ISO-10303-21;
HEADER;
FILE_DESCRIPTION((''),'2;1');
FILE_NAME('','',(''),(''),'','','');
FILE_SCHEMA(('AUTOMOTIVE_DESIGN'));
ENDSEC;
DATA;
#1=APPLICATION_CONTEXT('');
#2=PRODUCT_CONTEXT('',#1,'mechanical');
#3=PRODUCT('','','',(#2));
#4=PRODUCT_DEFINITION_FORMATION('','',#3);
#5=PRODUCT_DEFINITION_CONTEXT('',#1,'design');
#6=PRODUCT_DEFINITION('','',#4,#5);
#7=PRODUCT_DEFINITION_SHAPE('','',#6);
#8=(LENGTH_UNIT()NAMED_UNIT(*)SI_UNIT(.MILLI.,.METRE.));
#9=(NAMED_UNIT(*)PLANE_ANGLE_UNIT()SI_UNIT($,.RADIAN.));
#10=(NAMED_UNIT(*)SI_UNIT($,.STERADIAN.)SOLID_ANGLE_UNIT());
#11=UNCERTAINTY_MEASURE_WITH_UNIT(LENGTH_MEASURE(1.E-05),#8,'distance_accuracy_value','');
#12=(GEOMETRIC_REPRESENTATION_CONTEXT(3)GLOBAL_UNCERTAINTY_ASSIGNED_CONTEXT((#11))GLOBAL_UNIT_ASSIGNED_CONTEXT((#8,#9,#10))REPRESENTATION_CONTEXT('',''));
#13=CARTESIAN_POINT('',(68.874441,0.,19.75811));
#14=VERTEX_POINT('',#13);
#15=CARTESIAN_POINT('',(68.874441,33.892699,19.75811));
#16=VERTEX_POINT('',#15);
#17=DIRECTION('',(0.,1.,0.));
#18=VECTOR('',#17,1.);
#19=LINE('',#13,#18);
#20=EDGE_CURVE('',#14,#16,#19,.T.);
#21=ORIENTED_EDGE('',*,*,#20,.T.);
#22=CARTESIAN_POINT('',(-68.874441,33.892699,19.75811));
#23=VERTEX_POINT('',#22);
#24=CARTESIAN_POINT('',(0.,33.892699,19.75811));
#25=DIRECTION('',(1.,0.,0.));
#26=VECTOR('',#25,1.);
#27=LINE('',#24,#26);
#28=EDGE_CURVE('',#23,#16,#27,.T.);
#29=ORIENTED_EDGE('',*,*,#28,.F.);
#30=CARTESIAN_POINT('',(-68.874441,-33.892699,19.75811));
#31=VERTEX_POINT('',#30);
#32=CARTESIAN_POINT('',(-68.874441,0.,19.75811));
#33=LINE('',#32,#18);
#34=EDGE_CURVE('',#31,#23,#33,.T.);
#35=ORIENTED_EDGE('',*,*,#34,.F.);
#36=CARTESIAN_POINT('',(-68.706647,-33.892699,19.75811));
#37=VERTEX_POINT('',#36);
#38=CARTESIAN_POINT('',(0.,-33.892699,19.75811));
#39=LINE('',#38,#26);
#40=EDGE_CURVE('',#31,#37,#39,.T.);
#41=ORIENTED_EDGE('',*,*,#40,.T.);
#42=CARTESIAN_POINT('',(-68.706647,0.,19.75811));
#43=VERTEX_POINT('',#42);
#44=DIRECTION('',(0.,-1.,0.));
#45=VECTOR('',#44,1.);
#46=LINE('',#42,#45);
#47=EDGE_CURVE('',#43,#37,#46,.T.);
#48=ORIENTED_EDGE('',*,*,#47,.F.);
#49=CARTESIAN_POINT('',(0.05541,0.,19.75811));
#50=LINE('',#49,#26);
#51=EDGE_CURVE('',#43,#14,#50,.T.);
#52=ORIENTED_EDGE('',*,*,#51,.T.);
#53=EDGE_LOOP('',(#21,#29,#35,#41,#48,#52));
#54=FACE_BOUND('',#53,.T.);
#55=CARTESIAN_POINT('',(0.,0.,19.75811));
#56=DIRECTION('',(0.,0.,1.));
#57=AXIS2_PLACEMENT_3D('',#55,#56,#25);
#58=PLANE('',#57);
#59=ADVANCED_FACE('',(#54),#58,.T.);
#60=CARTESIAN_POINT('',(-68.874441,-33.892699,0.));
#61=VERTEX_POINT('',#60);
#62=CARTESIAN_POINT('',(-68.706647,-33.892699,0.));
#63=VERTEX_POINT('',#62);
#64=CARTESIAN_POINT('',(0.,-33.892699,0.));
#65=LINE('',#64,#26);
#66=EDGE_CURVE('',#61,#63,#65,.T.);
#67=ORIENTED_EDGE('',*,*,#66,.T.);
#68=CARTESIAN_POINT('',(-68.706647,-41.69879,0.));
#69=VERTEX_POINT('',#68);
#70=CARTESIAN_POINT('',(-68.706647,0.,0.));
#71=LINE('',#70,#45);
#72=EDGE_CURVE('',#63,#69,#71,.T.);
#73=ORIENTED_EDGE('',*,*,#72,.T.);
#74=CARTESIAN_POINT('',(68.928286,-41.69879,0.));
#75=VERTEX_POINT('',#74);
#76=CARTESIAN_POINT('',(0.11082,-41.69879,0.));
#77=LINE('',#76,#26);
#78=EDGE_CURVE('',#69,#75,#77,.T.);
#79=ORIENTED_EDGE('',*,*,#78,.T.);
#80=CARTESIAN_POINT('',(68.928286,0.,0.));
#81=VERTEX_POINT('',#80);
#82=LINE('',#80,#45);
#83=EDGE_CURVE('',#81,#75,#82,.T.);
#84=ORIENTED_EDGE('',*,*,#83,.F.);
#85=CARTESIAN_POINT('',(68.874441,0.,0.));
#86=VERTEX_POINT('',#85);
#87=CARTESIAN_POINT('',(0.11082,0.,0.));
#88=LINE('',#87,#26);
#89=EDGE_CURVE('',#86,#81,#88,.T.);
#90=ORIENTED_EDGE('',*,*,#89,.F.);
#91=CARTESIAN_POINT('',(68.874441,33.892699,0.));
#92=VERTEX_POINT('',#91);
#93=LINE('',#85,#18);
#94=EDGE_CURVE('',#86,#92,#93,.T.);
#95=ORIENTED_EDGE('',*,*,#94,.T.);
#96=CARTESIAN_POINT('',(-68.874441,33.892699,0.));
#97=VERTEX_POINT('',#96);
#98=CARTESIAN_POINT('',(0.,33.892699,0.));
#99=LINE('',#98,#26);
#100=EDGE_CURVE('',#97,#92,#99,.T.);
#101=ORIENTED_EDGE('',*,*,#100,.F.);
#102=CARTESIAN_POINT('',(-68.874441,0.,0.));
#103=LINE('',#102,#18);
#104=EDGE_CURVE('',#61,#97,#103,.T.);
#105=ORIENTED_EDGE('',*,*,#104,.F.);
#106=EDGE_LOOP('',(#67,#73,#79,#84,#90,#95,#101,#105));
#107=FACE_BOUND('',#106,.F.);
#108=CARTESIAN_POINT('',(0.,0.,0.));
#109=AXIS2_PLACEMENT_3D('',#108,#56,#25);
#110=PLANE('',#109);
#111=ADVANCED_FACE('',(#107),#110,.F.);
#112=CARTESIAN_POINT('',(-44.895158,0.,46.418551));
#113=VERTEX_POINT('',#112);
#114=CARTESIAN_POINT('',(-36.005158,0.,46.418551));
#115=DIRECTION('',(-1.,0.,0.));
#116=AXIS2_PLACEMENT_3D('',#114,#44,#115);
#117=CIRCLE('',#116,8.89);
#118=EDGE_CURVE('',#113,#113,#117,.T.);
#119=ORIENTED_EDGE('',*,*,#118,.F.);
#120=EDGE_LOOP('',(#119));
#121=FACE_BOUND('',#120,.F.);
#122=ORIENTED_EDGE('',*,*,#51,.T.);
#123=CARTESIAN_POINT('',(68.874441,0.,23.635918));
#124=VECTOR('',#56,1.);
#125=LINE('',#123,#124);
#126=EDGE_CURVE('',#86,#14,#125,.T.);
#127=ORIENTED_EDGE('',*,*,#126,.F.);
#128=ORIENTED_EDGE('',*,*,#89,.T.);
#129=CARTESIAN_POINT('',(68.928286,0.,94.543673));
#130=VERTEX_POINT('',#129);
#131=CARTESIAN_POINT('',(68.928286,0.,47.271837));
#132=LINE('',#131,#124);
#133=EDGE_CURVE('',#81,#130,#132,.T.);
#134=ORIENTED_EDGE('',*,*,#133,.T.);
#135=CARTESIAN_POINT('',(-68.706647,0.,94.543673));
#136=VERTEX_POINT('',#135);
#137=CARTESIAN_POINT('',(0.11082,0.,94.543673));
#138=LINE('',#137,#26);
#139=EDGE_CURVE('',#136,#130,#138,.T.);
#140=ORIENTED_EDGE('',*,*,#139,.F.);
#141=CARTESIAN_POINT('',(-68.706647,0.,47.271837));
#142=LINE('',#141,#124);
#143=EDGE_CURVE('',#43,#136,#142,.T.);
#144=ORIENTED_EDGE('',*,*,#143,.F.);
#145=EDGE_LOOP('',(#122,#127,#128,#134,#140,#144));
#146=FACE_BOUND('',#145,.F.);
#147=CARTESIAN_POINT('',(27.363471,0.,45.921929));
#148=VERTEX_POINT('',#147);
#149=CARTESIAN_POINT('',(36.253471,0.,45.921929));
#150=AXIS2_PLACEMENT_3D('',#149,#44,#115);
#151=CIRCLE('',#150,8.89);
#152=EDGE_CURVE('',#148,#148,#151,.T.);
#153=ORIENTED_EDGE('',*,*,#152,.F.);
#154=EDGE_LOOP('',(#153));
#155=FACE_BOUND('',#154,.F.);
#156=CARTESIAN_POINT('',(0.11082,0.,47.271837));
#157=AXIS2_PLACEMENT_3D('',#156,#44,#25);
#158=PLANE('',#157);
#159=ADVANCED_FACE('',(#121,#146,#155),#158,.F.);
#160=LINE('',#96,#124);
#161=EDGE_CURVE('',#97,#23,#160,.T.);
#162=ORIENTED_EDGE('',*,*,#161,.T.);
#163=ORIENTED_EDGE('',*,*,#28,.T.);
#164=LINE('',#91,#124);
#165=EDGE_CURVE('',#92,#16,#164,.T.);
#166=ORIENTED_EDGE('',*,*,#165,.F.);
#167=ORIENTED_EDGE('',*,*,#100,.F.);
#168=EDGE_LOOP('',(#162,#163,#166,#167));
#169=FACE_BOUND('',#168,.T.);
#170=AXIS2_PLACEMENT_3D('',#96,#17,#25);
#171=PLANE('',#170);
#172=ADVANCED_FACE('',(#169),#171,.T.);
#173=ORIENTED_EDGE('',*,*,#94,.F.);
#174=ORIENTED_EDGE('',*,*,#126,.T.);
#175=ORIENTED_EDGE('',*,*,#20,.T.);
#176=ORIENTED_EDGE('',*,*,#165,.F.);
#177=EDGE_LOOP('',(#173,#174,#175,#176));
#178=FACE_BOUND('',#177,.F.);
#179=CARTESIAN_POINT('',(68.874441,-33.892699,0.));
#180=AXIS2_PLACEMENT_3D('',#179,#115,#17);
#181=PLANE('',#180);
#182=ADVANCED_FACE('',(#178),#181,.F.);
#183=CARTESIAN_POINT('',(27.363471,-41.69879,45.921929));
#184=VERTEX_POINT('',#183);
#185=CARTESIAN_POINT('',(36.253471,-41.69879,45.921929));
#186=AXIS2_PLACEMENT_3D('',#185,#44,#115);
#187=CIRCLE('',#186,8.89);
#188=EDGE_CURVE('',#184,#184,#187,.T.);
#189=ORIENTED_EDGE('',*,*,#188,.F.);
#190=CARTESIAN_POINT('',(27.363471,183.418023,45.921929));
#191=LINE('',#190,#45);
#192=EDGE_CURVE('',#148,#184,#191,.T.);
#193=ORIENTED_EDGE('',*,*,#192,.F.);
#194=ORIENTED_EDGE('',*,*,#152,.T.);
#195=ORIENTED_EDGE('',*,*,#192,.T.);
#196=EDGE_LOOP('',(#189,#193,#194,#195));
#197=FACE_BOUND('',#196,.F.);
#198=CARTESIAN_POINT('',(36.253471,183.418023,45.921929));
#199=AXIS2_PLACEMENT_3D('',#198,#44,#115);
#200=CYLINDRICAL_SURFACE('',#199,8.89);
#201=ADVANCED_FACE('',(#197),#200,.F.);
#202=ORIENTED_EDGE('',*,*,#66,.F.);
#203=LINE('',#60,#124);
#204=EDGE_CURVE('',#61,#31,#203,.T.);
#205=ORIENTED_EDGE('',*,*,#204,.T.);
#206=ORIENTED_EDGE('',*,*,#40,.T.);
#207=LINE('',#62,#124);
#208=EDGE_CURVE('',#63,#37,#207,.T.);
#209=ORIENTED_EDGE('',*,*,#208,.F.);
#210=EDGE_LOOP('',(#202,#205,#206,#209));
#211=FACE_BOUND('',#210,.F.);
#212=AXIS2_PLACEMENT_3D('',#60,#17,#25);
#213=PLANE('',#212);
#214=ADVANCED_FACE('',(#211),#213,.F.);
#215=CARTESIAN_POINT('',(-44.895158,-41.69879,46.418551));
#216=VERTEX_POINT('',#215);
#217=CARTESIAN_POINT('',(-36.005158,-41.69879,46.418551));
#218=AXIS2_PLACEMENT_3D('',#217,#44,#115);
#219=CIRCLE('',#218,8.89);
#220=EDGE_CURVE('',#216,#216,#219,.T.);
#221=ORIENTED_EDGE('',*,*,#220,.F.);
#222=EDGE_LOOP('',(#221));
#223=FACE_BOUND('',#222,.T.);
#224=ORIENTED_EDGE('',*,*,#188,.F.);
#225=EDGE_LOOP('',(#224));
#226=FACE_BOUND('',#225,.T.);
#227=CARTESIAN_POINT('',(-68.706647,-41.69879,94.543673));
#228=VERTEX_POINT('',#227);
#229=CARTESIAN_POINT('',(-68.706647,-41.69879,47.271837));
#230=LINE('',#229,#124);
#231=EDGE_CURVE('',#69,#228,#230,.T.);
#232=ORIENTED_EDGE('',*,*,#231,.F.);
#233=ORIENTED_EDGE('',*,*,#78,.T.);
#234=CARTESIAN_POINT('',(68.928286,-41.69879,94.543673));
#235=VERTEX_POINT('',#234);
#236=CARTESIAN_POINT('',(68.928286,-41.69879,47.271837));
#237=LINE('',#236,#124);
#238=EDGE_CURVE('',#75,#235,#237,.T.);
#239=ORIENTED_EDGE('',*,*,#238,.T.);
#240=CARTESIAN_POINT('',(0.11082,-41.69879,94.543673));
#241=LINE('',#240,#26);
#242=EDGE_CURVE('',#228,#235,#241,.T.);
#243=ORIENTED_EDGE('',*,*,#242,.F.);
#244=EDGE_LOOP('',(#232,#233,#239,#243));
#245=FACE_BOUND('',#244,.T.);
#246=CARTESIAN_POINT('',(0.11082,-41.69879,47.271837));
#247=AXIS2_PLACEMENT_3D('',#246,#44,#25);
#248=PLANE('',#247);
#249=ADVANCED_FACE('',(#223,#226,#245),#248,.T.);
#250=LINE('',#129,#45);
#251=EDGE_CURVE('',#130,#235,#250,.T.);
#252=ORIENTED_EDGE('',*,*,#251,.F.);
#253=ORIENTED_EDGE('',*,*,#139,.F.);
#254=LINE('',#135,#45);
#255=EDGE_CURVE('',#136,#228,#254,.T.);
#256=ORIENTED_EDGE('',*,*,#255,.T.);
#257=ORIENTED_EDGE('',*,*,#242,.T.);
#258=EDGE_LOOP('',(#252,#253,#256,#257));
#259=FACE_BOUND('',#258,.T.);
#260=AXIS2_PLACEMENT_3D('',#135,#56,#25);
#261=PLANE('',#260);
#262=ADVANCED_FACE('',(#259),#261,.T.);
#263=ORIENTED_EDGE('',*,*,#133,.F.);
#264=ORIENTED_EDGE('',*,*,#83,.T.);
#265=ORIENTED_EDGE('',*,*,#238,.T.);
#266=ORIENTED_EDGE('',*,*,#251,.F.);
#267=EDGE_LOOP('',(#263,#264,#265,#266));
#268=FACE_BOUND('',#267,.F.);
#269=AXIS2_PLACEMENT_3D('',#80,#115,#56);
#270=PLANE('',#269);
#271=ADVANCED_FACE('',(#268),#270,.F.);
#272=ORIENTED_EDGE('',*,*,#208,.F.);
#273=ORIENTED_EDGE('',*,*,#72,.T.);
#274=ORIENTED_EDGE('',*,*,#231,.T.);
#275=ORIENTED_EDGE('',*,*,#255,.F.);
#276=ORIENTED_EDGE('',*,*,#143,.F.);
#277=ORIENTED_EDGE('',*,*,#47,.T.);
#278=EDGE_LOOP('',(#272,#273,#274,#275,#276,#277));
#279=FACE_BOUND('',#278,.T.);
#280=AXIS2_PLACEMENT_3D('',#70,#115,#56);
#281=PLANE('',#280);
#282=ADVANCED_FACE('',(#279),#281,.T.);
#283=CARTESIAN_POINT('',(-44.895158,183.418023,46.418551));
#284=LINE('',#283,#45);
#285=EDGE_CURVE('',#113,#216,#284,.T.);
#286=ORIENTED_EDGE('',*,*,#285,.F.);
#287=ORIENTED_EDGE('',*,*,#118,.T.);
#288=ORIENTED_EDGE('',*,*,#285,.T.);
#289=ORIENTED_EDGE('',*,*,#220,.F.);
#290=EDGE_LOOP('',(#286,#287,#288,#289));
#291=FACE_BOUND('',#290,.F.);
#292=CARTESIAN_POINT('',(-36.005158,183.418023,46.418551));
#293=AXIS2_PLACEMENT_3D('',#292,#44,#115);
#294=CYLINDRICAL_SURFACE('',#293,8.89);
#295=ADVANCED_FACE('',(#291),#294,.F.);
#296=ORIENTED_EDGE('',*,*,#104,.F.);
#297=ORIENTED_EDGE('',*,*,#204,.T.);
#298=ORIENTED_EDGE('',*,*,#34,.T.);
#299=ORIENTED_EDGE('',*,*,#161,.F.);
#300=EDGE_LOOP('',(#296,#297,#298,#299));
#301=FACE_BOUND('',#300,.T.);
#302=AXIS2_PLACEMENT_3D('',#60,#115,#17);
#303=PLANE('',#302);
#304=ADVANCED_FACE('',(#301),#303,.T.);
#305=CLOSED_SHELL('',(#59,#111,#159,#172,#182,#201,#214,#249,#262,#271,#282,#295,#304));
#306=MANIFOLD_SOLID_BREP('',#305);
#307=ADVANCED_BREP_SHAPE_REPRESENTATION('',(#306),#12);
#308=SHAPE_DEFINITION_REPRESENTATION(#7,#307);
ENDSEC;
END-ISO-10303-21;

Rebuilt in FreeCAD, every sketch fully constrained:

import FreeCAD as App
import Part
import Sketcher
from FreeCAD import Vector
Q = App.Units.Quantity

doc = App.newDocument("Part")
body = doc.addObject("PartDesign::Body", "Body")

sketch1 = doc.addObject("Sketcher::SketchObject", "Sketch")
body.addObject(sketch1)
sketch1.AttachmentSupport = (doc.XY_Plane, [""])
sketch1.MapMode = "FlatFace"
sketch1.addGeometry([
    Part.LineSegment(Vector(-68.874441, 33.892699, 0), Vector(-68.874441, -33.892699, 0)),
    Part.LineSegment(Vector(-68.874441, -33.892699, 0), Vector(68.874441, -33.892699, 0)),
    Part.LineSegment(Vector(68.874441, -33.892699, 0), Vector(68.874441, 33.892699, 0)),
    Part.LineSegment(Vector(68.874441, 33.892699, 0), Vector(-68.874441, 33.892699, 0)),
], False)
sketch1.addConstraint([
    Sketcher.Constraint("Coincident", 0, 2, 1, 1),
    Sketcher.Constraint("Coincident", 1, 2, 2, 1),
    Sketcher.Constraint("Coincident", 2, 2, 3, 1),
    Sketcher.Constraint("Coincident", 3, 2, 0, 1),
    Sketcher.Constraint("Vertical", 0),
    Sketcher.Constraint("Horizontal", 1),
    Sketcher.Constraint("Vertical", 2),
    Sketcher.Constraint("Horizontal", 3),
    Sketcher.Constraint("Symmetric", 0, 2, 2, 2, -1, 1),
    Sketcher.Constraint("DistanceY", 0, 2, -1, 1, Q("33.892699 mm")),
    Sketcher.Constraint("DistanceX", 1, 1, 1, 2, Q("137.748882 mm")),
])
pad1 = doc.addObject("PartDesign::Pad", "Pad")
body.addObject(pad1)
pad1.Profile = sketch1
pad1.Length = 19.75811

sketch2 = doc.addObject("Sketcher::SketchObject", "Sketch001")
body.addObject(sketch2)
sketch2.AttachmentSupport = (doc.XZ_Plane, [""])
sketch2.MapMode = "FlatFace"
sketch2.addGeometry([
    Part.LineSegment(Vector(-68.706647, 94.543673, 0), Vector(-68.706647, 0, 0)),
    Part.LineSegment(Vector(-68.706647, 0, 0), Vector(68.928286, 0, 0)),
    Part.LineSegment(Vector(68.928286, 0, 0), Vector(68.928286, 94.543673, 0)),
    Part.LineSegment(Vector(68.928286, 94.543673, 0), Vector(-68.706647, 94.543673, 0)),
], False)
sketch2.addConstraint([
    Sketcher.Constraint("Coincident", 0, 2, 1, 1),
    Sketcher.Constraint("Coincident", 1, 2, 2, 1),
    Sketcher.Constraint("Coincident", 2, 2, 3, 1),
    Sketcher.Constraint("Coincident", 3, 2, 0, 1),
    Sketcher.Constraint("Vertical", 0),
    Sketcher.Constraint("Horizontal", 1),
    Sketcher.Constraint("Vertical", 2),
    Sketcher.Constraint("Horizontal", 3),
    Sketcher.Constraint("PointOnObject", 0, 2, -1),
    Sketcher.Constraint("DistanceX", 1, 1, 1, 2, Q("137.634933 mm")),
    Sketcher.Constraint("DistanceY", 0, 2, 0, 1, Q("94.543673 mm")),
    Sketcher.Constraint("DistanceX", 0, 2, -1, 1, Q("68.706647 mm")),
])
pad2 = doc.addObject("PartDesign::Pad", "Pad001")
body.addObject(pad2)
pad2.Profile = sketch2
pad2.Length = 41.69879

sketch3 = doc.addObject("Sketcher::SketchObject", "Sketch002")
body.addObject(sketch3)
sketch3.AttachmentSupport = (doc.XZ_Plane, [""])
sketch3.MapMode = "FlatFace"
sketch3.addGeometry([
    Part.Circle(Vector(-36.005158, 46.418551, 0), Vector(0, 0, 1), 8.89),
    Part.Circle(Vector(36.253471, 45.921929, 0), Vector(0, 0, 1), 8.89),
], False)
sketch3.addConstraint([
    Sketcher.Constraint("Equal", 0, 1),
    Sketcher.Constraint("Diameter", 0, Q("0.7 in")),
    Sketcher.Constraint("DistanceY", -1, 1, 0, 3, Q("46.418551 mm")),
    Sketcher.Constraint("DistanceX", -1, 1, 1, 3, Q("36.253471 mm")),
    Sketcher.Constraint("DistanceY", -1, 1, 1, 3, Q("45.921929 mm")),
    Sketcher.Constraint("DistanceX", 0, 3, 1, 3, Q("72.258629 mm")),
])
doc.recompute()
hole = doc.addObject("PartDesign::Hole", "Hole")
body.addObject(hole)
hole.Profile = sketch3
hole.ThreadType = "None"
hole.Diameter = Q("0.7 in")
hole.DepthType = "ThroughAll"
hole.Reversed = True

doc.recompute()
